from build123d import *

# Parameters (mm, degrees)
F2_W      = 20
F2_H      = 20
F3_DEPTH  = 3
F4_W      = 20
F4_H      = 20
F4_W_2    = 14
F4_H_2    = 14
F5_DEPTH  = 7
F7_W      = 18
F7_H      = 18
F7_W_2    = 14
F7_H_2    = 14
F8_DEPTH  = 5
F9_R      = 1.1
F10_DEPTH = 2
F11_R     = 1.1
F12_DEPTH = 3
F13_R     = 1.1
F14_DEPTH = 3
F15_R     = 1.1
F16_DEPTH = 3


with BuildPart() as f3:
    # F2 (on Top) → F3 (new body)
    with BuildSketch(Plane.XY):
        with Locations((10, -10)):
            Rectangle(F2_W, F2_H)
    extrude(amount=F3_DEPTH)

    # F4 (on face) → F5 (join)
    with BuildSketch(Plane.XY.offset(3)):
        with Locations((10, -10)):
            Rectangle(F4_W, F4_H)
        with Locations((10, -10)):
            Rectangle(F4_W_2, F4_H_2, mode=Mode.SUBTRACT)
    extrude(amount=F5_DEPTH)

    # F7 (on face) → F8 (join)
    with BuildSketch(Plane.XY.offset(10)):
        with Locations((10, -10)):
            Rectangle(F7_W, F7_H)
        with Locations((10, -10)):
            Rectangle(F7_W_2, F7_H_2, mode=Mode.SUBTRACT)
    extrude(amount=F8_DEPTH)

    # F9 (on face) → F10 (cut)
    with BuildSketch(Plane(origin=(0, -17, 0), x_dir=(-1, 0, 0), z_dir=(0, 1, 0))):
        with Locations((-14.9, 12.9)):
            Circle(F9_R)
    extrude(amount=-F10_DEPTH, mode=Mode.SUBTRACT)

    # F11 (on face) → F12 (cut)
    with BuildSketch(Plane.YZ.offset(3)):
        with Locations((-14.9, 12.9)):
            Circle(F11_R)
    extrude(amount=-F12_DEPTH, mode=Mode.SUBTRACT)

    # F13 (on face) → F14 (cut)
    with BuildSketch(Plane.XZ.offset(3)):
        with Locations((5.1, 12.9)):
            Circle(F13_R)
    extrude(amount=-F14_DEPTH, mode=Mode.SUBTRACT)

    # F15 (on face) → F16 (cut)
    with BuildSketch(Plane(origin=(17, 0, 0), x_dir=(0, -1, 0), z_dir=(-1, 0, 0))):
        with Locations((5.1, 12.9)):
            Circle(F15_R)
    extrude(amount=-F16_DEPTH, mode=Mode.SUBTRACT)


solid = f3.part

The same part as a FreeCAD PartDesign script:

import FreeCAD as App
import Part
import Sketcher
from FreeCAD import Vector
Q = App.Units.Quantity


def add_polygon(sketch, points):
    """Adds a closed chain of lines whose ends are joined by coincident constraints."""
    first, n = sketch.GeometryCount, len(points)
    for a, b in zip(points, points[1:] + points[:1]):
        sketch.addGeometry(Part.LineSegment(App.Vector(*a, 0), App.Vector(*b, 0)), False)
    for i in range(n):
        sketch.addConstraint(Sketcher.Constraint("Coincident", first + i, 2, first + (i + 1) % n, 1))

doc = App.newDocument("Part")
body = doc.addObject("PartDesign::Body", "Body")

sketch1 = doc.addObject("Sketcher::SketchObject", "Sketch")
body.addObject(sketch1)
sketch1.AttachmentSupport = (doc.XY_Plane, [""])
sketch1.MapMode = "FlatFace"
add_polygon(sketch1, [(0, 0), (0, -20), (20, -20), (20, 0)])
sketch1.addConstraint([
    Sketcher.Constraint("Vertical", 0),
    Sketcher.Constraint("Horizontal", 1),
    Sketcher.Constraint("Vertical", 2),
    Sketcher.Constraint("Horizontal", 3),
    Sketcher.Constraint("Coincident", 3, 2, -1, 1),
    Sketcher.Constraint("Equal", 3, 0),
    Sketcher.Constraint("DistanceX", 1, 1, 1, 2, Q("20 mm")),
])
pad1 = doc.addObject("PartDesign::Pad", "Pad")
body.addObject(pad1)
pad1.Profile = sketch1
pad1.Length = 3

sketch2 = doc.addObject("Sketcher::SketchObject", "Sketch001")
body.addObject(sketch2)
sketch2.AttachmentSupport = (doc.XY_Plane, [""])
sketch2.MapMode = "FlatFace"
sketch2.AttachmentOffset = App.Placement(Vector(0, 0, 3), App.Rotation())
add_polygon(sketch2, [(0, 0), (0, -20), (20, -20), (20, 0)])
add_polygon(sketch2, [(17, -17), (3, -17), (3, -3), (17, -3)])
sketch2.addConstraint([
    Sketcher.Constraint("Vertical", 0),
    Sketcher.Constraint("Horizontal", 1),
    Sketcher.Constraint("Vertical", 2),
    Sketcher.Constraint("Horizontal", 3),
    Sketcher.Constraint("Horizontal", 4),
    Sketcher.Constraint("Vertical", 5),
    Sketcher.Constraint("Horizontal", 6),
    Sketcher.Constraint("Vertical", 7),
    Sketcher.Constraint("Coincident", 3, 2, -1, 1),
    Sketcher.Constraint("Equal", 3, 0),
    Sketcher.Constraint("Equal", 6, 5),
    Sketcher.Constraint("DistanceX", 1, 1, 1, 2, Q("20 mm")),
    Sketcher.Constraint("DistanceX", 4, 2, 4, 1, Q("14 mm")),
    Sketcher.Constraint("DistanceX", -1, 1, 4, 2, Q("3 mm")),
    Sketcher.Constraint("DistanceY", 4, 2, -1, 1, Q("17 mm")),
])
pad2 = doc.addObject("PartDesign::Pad", "Pad001")
body.addObject(pad2)
pad2.Profile = sketch2
pad2.Length = 7

sketch3 = doc.addObject("Sketcher::SketchObject", "Sketch002")
body.addObject(sketch3)
sketch3.AttachmentSupport = (doc.XY_Plane, [""])
sketch3.MapMode = "FlatFace"
sketch3.AttachmentOffset = App.Placement(Vector(0, 0, 10), App.Rotation())
add_polygon(sketch3, [(1, -1), (1, -19), (19, -19), (19, -1)])
add_polygon(sketch3, [(17, -17), (3, -17), (3, -3), (17, -3)])
sketch3.addConstraint([
    Sketcher.Constraint("Vertical", 0),
    Sketcher.Constraint("Horizontal", 1),
    Sketcher.Constraint("Vertical", 2),
    Sketcher.Constraint("Horizontal", 3),
    Sketcher.Constraint("Horizontal", 4),
    Sketcher.Constraint("Vertical", 5),
    Sketcher.Constraint("Horizontal", 6),
    Sketcher.Constraint("Vertical", 7),
    Sketcher.Constraint("Equal", 3, 0),
    Sketcher.Constraint("Equal", 6, 5),
    Sketcher.Constraint("DistanceX", 1, 1, 1, 2, Q("18 mm")),
    Sketcher.Constraint("DistanceX", 4, 2, 4, 1, Q("14 mm")),
    Sketcher.Constraint("DistanceX", -1, 1, 0, 2, Q("1 mm")),
    Sketcher.Constraint("DistanceY", 0, 2, -1, 1, Q("19 mm")),
    Sketcher.Constraint("DistanceX", -1, 1, 4, 2, Q("3 mm")),
    Sketcher.Constraint("DistanceY", 4, 2, -1, 1, Q("17 mm")),
])
pad3 = doc.addObject("PartDesign::Pad", "Pad002")
body.addObject(pad3)
pad3.Profile = sketch3
pad3.Length = 5

sketch4 = doc.addObject("Sketcher::SketchObject", "Sketch003")
body.addObject(sketch4)
sketch4.AttachmentSupport = (doc.XZ_Plane, [""])
sketch4.MapMode = "FlatFace"
sketch4.AttachmentOffset = App.Placement(Vector(0, 0, 17), App.Rotation())
sketch4.addGeometry(Part.Circle(Vector(14.9, 12.9, 0), Vector(0, 0, 1), 1.1), False)
sketch4.addConstraint([
    Sketcher.Constraint("Diameter", 0, Q("2.2 mm")),
    Sketcher.Constraint("DistanceX", -1, 1, 0, 3, Q("14.9 mm")),
    Sketcher.Constraint("DistanceY", -1, 1, 0, 3, Q("12.9 mm")),
])
pocket1 = doc.addObject("PartDesign::Pocket", "Pocket")
body.addObject(pocket1)
pocket1.Profile = sketch4
pocket1.Length = 2
pocket1.Reversed = True

sketch5 = doc.addObject("Sketcher::SketchObject", "Sketch004")
body.addObject(sketch5)
sketch5.AttachmentSupport = (doc.YZ_Plane, [""])
sketch5.MapMode = "FlatFace"
sketch5.AttachmentOffset = App.Placement(Vector(0, 0, 3), App.Rotation())
sketch5.addGeometry(Part.Circle(Vector(-14.9, 12.9, 0), Vector(0, 0, 1), 1.1), False)
sketch5.addConstraint([
    Sketcher.Constraint("Diameter", 0, Q("2.2 mm")),
    Sketcher.Constraint("DistanceX", 0, 3, -1, 1, Q("14.9 mm")),
    Sketcher.Constraint("DistanceY", -1, 1, 0, 3, Q("12.9 mm")),
])
pocket2 = doc.addObject("PartDesign::Pocket", "Pocket001")
body.addObject(pocket2)
pocket2.Profile = sketch5
pocket2.Length = 3

sketch6 = doc.addObject("Sketcher::SketchObject", "Sketch005")
body.addObject(sketch6)
sketch6.AttachmentSupport = (doc.XZ_Plane, [""])
sketch6.MapMode = "FlatFace"
sketch6.AttachmentOffset = App.Placement(Vector(0, 0, 3), App.Rotation())
sketch6.addGeometry(Part.Circle(Vector(5.1, 12.9, 0), Vector(0, 0, 1), 1.1), False)
sketch6.addConstraint([
    Sketcher.Constraint("Diameter", 0, Q("2.2 mm")),
    Sketcher.Constraint("DistanceX", -1, 1, 0, 3, Q("5.1 mm")),
    Sketcher.Constraint("DistanceY", -1, 1, 0, 3, Q("12.9 mm")),
])
pocket3 = doc.addObject("PartDesign::Pocket", "Pocket002")
body.addObject(pocket3)
pocket3.Profile = sketch6
pocket3.Length = 3

sketch7 = doc.addObject("Sketcher::SketchObject", "Sketch006")
body.addObject(sketch7)
sketch7.AttachmentSupport = (doc.YZ_Plane, [""])
sketch7.MapMode = "FlatFace"
sketch7.AttachmentOffset = App.Placement(Vector(0, 0, 17), App.Rotation())
sketch7.addGeometry(Part.Circle(Vector(-5.1, 12.9, 0), Vector(0, 0, 1), 1.1), False)
sketch7.addConstraint([
    Sketcher.Constraint("Diameter", 0, Q("2.2 mm")),
    Sketcher.Constraint("DistanceX", 0, 3, -1, 1, Q("5.1 mm")),
    Sketcher.Constraint("DistanceY", -1, 1, 0, 3, Q("12.9 mm")),
])
pocket4 = doc.addObject("PartDesign::Pocket", "Pocket003")
body.addObject(pocket4)
pocket4.Profile = sketch7
pocket4.Length = 3
pocket4.Reversed = True

doc.recompute()
